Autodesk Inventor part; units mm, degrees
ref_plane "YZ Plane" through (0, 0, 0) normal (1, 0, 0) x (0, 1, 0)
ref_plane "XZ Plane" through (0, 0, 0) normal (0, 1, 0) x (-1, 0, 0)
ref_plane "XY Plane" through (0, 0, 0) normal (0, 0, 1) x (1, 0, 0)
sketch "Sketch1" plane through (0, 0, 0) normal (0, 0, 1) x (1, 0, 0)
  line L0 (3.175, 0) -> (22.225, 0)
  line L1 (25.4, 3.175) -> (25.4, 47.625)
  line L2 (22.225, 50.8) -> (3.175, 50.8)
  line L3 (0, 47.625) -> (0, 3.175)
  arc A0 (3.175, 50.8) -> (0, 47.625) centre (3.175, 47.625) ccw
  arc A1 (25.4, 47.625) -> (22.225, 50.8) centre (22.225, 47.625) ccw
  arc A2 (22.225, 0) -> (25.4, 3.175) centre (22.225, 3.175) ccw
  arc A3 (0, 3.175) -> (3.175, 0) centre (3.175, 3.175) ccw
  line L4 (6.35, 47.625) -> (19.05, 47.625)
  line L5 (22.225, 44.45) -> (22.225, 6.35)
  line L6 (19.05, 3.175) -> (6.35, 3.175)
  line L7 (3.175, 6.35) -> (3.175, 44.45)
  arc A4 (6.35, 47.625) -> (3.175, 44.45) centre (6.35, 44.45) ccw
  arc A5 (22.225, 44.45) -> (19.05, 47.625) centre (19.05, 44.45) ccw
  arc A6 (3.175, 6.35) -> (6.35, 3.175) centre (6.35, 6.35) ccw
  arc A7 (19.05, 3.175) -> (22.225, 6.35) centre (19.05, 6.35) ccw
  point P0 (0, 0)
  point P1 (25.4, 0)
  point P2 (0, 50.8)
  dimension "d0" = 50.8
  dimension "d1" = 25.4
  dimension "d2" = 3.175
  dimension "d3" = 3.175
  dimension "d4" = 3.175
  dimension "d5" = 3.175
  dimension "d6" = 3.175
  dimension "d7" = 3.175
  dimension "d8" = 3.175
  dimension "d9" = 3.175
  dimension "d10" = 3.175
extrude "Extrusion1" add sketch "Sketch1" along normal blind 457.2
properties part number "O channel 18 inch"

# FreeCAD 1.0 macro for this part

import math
import FreeCAD as App
import Part
import Sketcher
Q = App.Units.Quantity

doc = App.newDocument("Part")
body = doc.addObject("PartDesign::Body", "Body")

# Sketch on XY plane
sketch1 = body.newObject("Sketcher::SketchObject", "Sketch")
sketch1.AttachmentSupport = (doc.getObject("XY_Plane"), [""])
sketch1.MapMode = "FlatFace"
sketch1.addGeometry(Part.ArcOfCircle(Part.Circle(App.Vector(3.2, 3.2, 0), App.Vector(0, 0, 1), 3.2), math.radians(180), math.radians(270)), False)
sketch1.addGeometry(Part.LineSegment(App.Vector(3.2, 0, 0), App.Vector(22.2, 0, 0)), False)
sketch1.addGeometry(Part.ArcOfCircle(Part.Circle(App.Vector(22.2, 3.2, 0), App.Vector(0, 0, 1), 3.2), math.radians(-90), math.radians(0)), False)
sketch1.addGeometry(Part.LineSegment(App.Vector(25.4, 3.2, 0), App.Vector(25.4, 47.6, 0)), False)
sketch1.addGeometry(Part.ArcOfCircle(Part.Circle(App.Vector(22.2, 47.6, 0), App.Vector(0, 0, 1), 3.2), math.radians(0), math.radians(90)), False)
sketch1.addGeometry(Part.LineSegment(App.Vector(22.2, 50.8, 0), App.Vector(3.2, 50.8, 0)), False)
sketch1.addGeometry(Part.ArcOfCircle(Part.Circle(App.Vector(3.2, 47.6, 0), App.Vector(0, 0, 1), 3.2), math.radians(90), math.radians(180)), False)
sketch1.addGeometry(Part.LineSegment(App.Vector(0, 47.6, 0), App.Vector(0, 3.2, 0)), False)
sketch1.addGeometry(Part.ArcOfCircle(Part.Circle(App.Vector(6.3, 44.5, 0), App.Vector(0, 0, 1), 3.2), math.radians(90), math.radians(180)), False)
sketch1.addGeometry(Part.LineSegment(App.Vector(6.3, 47.6, 0), App.Vector(19.1, 47.6, 0)), False)
sketch1.addGeometry(Part.ArcOfCircle(Part.Circle(App.Vector(19.1, 44.5, 0), App.Vector(0, 0, 1), 3.2), math.radians(0), math.radians(90)), False)
sketch1.addGeometry(Part.LineSegment(App.Vector(22.2, 44.5, 0), App.Vector(22.2, 6.3, 0)), False)
sketch1.addGeometry(Part.ArcOfCircle(Part.Circle(App.Vector(19.1, 6.3, 0), App.Vector(0, 0, 1), 3.2), math.radians(-90), math.radians(0)), False)
sketch1.addGeometry(Part.LineSegment(App.Vector(19.1, 3.2, 0), App.Vector(6.3, 3.2, 0)), False)
sketch1.addGeometry(Part.ArcOfCircle(Part.Circle(App.Vector(6.3, 6.3, 0), App.Vector(0, 0, 1), 3.2), math.radians(180), math.radians(270)), False)
sketch1.addGeometry(Part.LineSegment(App.Vector(3.2, 6.3, 0), App.Vector(3.2, 44.5, 0)), False)
sketch1.addConstraint(Sketcher.Constraint("Tangent", 0, 2, 1, 1))
sketch1.addConstraint(Sketcher.Constraint("Tangent", 1, 2, 2, 1))
sketch1.addConstraint(Sketcher.Constraint("Tangent", 2, 2, 3, 1))
sketch1.addConstraint(Sketcher.Constraint("Tangent", 3, 2, 4, 1))
sketch1.addConstraint(Sketcher.Constraint("Tangent", 4, 2, 5, 1))
sketch1.addConstraint(Sketcher.Constraint("Tangent", 5, 2, 6, 1))
sketch1.addConstraint(Sketcher.Constraint("Tangent", 6, 2, 7, 1))
sketch1.addConstraint(Sketcher.Constraint("Tangent", 7, 2, 0, 1))
sketch1.addConstraint(Sketcher.Constraint("Tangent", 8, 1, 9, 1))
sketch1.addConstraint(Sketcher.Constraint("Tangent", 9, 2, 10, 2))
sketch1.addConstraint(Sketcher.Constraint("Tangent", 10, 1, 11, 1))
sketch1.addConstraint(Sketcher.Constraint("Tangent", 11, 2, 12, 2))
sketch1.addConstraint(Sketcher.Constraint("Tangent", 12, 1, 13, 1))
sketch1.addConstraint(Sketcher.Constraint("Tangent", 13, 2, 14, 2))
sketch1.addConstraint(Sketcher.Constraint("Tangent", 14, 1, 15, 1))
sketch1.addConstraint(Sketcher.Constraint("Tangent", 15, 2, 8, 2))
sketch1.addConstraint(Sketcher.Constraint("Horizontal", 1))
sketch1.addConstraint(Sketcher.Constraint("Vertical", 3))
sketch1.addConstraint(Sketcher.Constraint("Horizontal", 5))
sketch1.addConstraint(Sketcher.Constraint("Vertical", 7))
sketch1.addConstraint(Sketcher.Constraint("Horizontal", 9))
sketch1.addConstraint(Sketcher.Constraint("Vertical", 11))
sketch1.addConstraint(Sketcher.Constraint("Horizontal", 13))
sketch1.addConstraint(Sketcher.Constraint("Vertical", 15))
sketch1.addConstraint(Sketcher.Constraint("Equal", 0, 2))
sketch1.addConstraint(Sketcher.Constraint("Equal", 2, 4))
sketch1.addConstraint(Sketcher.Constraint("Equal", 4, 6))
sketch1.addConstraint(Sketcher.Constraint("Equal", 6, 8))
sketch1.addConstraint(Sketcher.Constraint("Equal", 8, 10))
sketch1.addConstraint(Sketcher.Constraint("Equal", 10, 12))
sketch1.addConstraint(Sketcher.Constraint("Equal", 12, 14))
sketch1.addConstraint(Sketcher.Constraint("PointOnObject", 0, 2, -1))
sketch1.addConstraint(Sketcher.Constraint("PointOnObject", 6, 2, -2))
sketch1.addConstraint(Sketcher.Constraint("Horizontal", 6, 2, 8, 1))
sketch1.addConstraint(Sketcher.Constraint("Horizontal", 7, 2, 12, 1))
sketch1.addConstraint(Sketcher.Constraint("Vertical", 4, 2, 10, 1))
sketch1.addConstraint(Sketcher.Constraint("Vertical", 5, 2, 14, 1))
sketch1.addConstraint(Sketcher.Constraint("DistanceX", -1, 1, 2, 2, Q("1 in")))
sketch1.addConstraint(Sketcher.Constraint("DistanceY", -1, 1, 4, 2, Q("2 in")))
sketch1.addConstraint(Sketcher.Constraint("Radius", 0, Q("0.125 in")))
pad1 = body.newObject("PartDesign::Pad", "Pad")
pad1.Profile = sketch1
pad1.Length = Q("18 in")

doc.recompute()
